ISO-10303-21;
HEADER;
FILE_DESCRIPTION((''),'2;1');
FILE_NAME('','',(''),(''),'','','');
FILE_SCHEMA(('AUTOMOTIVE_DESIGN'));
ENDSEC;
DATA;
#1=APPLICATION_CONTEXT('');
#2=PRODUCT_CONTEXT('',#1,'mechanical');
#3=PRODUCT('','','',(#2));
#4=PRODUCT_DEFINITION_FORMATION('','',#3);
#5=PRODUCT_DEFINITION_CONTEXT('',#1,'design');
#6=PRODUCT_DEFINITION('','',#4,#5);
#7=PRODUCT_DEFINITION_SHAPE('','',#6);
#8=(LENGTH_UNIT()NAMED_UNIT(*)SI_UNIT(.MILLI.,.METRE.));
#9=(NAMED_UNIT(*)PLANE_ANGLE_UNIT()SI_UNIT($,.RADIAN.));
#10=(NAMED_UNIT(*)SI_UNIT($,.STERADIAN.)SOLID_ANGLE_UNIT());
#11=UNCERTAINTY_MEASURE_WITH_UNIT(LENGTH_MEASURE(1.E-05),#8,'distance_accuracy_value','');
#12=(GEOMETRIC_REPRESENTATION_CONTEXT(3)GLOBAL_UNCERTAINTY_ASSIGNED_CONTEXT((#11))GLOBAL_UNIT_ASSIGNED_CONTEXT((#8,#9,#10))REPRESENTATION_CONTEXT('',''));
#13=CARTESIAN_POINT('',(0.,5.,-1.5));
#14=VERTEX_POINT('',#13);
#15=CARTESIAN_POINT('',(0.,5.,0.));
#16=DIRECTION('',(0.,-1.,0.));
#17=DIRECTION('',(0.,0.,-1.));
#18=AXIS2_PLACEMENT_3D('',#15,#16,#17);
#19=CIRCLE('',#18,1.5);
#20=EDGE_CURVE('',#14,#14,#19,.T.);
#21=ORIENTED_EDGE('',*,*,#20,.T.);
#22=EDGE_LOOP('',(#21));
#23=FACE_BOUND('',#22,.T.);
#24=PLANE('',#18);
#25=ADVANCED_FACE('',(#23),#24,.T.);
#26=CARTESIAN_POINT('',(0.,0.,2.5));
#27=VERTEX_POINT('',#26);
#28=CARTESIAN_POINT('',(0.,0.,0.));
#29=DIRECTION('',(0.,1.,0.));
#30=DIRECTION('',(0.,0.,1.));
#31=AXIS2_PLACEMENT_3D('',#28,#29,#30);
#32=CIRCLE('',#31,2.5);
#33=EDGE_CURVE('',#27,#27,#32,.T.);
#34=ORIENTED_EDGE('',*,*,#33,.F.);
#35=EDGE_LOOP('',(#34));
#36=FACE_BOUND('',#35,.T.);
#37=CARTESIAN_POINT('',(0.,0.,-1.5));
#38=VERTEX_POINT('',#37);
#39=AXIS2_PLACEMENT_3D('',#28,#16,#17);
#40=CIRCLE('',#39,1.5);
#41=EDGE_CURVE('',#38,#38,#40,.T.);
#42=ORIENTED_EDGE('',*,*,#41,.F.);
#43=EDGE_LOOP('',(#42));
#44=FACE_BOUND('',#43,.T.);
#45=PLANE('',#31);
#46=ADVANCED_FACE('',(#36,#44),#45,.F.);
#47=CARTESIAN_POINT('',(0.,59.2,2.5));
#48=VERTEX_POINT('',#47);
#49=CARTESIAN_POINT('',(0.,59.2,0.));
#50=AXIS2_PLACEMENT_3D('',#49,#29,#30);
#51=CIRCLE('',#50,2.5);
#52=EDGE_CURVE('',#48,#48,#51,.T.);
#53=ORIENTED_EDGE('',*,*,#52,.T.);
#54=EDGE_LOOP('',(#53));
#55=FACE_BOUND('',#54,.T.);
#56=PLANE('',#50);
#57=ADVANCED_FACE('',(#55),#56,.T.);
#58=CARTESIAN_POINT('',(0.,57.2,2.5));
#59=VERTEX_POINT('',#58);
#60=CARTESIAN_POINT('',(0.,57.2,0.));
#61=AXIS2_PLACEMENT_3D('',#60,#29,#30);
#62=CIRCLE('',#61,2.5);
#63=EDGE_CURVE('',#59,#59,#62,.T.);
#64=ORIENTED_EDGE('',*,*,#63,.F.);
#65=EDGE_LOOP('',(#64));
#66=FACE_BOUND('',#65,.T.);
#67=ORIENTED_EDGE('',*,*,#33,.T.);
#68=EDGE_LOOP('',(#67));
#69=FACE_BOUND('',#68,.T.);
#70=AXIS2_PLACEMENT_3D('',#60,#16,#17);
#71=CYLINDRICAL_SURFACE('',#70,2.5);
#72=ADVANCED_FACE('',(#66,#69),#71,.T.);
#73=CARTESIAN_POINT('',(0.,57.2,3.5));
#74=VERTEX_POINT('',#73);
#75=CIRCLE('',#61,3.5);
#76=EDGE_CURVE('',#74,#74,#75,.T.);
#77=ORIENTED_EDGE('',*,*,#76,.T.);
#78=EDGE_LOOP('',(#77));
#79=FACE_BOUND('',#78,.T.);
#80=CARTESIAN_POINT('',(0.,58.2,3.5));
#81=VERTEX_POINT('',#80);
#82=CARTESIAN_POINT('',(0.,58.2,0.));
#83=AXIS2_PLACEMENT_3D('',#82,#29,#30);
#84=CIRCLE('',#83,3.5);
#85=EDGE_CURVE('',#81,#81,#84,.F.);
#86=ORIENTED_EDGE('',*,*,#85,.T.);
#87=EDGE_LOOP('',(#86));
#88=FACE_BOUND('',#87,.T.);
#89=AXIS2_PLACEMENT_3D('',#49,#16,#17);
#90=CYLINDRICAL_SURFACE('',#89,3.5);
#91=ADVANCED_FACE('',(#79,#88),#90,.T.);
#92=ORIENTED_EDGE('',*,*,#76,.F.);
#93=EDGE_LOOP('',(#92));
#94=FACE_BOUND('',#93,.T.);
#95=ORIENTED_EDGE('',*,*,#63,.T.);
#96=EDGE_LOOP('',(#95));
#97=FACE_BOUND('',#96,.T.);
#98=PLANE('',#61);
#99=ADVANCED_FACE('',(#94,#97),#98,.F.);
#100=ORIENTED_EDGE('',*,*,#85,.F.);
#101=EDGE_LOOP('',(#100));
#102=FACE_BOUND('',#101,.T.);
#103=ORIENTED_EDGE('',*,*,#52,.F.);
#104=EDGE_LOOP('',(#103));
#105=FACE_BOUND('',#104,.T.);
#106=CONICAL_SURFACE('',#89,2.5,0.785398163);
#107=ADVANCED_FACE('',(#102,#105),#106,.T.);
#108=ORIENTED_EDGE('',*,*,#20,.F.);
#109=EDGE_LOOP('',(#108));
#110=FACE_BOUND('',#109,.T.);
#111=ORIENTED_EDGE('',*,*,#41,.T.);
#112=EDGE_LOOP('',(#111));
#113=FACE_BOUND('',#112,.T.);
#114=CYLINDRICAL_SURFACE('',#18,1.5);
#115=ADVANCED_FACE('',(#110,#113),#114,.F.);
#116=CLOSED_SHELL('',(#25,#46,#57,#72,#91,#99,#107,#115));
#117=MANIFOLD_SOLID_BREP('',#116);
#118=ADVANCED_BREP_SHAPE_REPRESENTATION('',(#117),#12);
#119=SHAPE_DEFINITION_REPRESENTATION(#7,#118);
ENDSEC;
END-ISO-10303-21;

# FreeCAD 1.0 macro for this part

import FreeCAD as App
import Part
import Sketcher
from FreeCAD import Vector
Q = App.Units.Quantity


def edges_at(feature, points):
    """Names of the edges that pass closest to the given points."""
    edges = feature.Shape.Edges
    near = lambda p: min(range(len(edges)), key=lambda i: edges[i].distToShape(Part.Vertex(*p))[0])
    return sorted({f"Edge{near(p) + 1}" for p in points})

doc = App.newDocument("Part")
body = doc.addObject("PartDesign::Body", "Body")

# Sketch on XZ plane
sketch1 = body.newObject("Sketcher::SketchObject", "Sketch")
sketch1.AttachmentSupport = (doc.getObject("XZ_Plane"), [""])
sketch1.MapMode = "FlatFace"
sketch1.addGeometry(Part.Circle(Vector(0, 0, 0), Vector(0, 0, 1), 2.5), False)
sketch1.addConstraint(Sketcher.Constraint("Coincident", 0, 3, -1, 1))
sketch1.addConstraint(Sketcher.Constraint("Diameter", 0, Q("5 mm")))
pad1 = body.newObject("PartDesign::Pad", "Pad")
pad1.Profile = sketch1
pad1.Length = 57.2
pad1.Reversed = True

# Sketch on XZ plane
sketch2 = body.newObject("Sketcher::SketchObject", "Sketch001")
sketch2.AttachmentSupport = (doc.getObject("XZ_Plane"), [""])
sketch2.MapMode = "FlatFace"
sketch2.AttachmentOffset = App.Placement(Vector(0, 0, -57.2), App.Rotation())
sketch2.addGeometry(Part.Circle(Vector(0, 0, 0), Vector(0, 0, 1), 3.5), False)
sketch2.addConstraint(Sketcher.Constraint("Coincident", 0, 3, -1, 1))
sketch2.addConstraint(Sketcher.Constraint("Diameter", 0, Q("7 mm")))
pad2 = body.newObject("PartDesign::Pad", "Pad001")
pad2.Profile = sketch2
pad2.Length = 2
pad2.Reversed = True
doc.recompute()

chamfer = body.newObject("PartDesign::Chamfer", "Chamfer")
chamfer.Base = (pad2, edges_at(pad2, [(-3.5, 59.2, 0)]))
chamfer.Size = 1

# Sketch on XZ plane
sketch3 = body.newObject("Sketcher::SketchObject", "Sketch002")
sketch3.AttachmentSupport = (doc.getObject("XZ_Plane"), [""])
sketch3.MapMode = "FlatFace"
sketch3.addGeometry(Part.Circle(Vector(0, 0, 0), Vector(0, 0, 1), 1.5), False)
sketch3.addConstraint(Sketcher.Constraint("Coincident", 0, 3, -1, 1))
sketch3.addConstraint(Sketcher.Constraint("Diameter", 0, Q("3 mm")))
pocket1 = body.newObject("PartDesign::Pocket", "Pocket")
pocket1.Profile = sketch3
pocket1.Length = 5

doc.recompute()
